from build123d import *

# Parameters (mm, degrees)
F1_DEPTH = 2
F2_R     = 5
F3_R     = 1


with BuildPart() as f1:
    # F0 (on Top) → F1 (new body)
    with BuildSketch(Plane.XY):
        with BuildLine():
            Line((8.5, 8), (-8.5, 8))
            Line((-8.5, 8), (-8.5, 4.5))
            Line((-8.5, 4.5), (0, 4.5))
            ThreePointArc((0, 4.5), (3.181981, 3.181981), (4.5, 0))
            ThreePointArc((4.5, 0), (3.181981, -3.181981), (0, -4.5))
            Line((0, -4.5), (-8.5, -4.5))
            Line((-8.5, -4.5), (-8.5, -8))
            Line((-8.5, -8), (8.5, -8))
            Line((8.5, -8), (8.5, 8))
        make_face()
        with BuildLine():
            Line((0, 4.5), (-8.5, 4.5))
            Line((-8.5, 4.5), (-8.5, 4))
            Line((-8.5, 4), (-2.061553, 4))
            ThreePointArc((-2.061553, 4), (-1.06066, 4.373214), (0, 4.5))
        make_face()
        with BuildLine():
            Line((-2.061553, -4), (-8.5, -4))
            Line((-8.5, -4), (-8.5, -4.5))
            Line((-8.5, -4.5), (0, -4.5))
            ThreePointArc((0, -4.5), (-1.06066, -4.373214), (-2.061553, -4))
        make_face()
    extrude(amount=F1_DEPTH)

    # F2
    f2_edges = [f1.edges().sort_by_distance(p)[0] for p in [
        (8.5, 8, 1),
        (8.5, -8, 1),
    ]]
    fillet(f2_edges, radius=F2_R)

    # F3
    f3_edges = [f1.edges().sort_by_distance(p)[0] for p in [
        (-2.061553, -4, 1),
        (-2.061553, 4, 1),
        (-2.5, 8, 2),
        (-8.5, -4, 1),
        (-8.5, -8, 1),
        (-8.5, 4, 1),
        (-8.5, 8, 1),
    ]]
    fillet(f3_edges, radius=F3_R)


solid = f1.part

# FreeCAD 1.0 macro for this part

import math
import FreeCAD as App
import Part
import Sketcher
from FreeCAD import Vector
Q = App.Units.Quantity


def edges_at(feature, points):
    """Names of the edges that pass closest to the given points."""
    edges = feature.Shape.Edges
    near = lambda p: min(range(len(edges)), key=lambda i: edges[i].distToShape(Part.Vertex(*p))[0])
    return sorted({f"Edge{near(p) + 1}" for p in points})

doc = App.newDocument("Part")
body = doc.addObject("PartDesign::Body", "Body")

sketch1 = doc.addObject("Sketcher::SketchObject", "Sketch")
body.addObject(sketch1)
sketch1.AttachmentSupport = (doc.XY_Plane, [""])
sketch1.MapMode = "FlatFace"
sketch1.addGeometry([
    Part.LineSegment(Vector(8.5, 8, 0), Vector(-8.5, 8, 0)),
    Part.LineSegment(Vector(-8.5, 8, 0), Vector(-8.5, 4, 0)),
    Part.LineSegment(Vector(-8.5, 4, 0), Vector(-2.061553, 4, 0)),
    Part.ArcOfCircle(Part.Circle(Vector(0, 0, 0), Vector(0, 0, 1), 4.5), math.radians(89.999998), math.radians(117.266044)),
    Part.ArcOfCircle(Part.Circle(Vector(0.000002, 0.000002, 0), Vector(0, 0, 1), 4.499998), math.radians(-0.000021), math.radians(90.000021)),
    Part.ArcOfCircle(Part.Circle(Vector(0.000002, -0.000002, 0), Vector(0, 0, 1), 4.499998), math.radians(-90.000021), math.radians(0.000021)),
    Part.ArcOfCircle(Part.Circle(Vector(0, 0, 0), Vector(0, 0, 1), 4.5), math.radians(-117.266044), math.radians(-89.999998)),
    Part.LineSegment(Vector(-2.061553, -4, 0), Vector(-8.5, -4, 0)),
    Part.LineSegment(Vector(-8.5, -4, 0), Vector(-8.5, -8, 0)),
    Part.LineSegment(Vector(-8.5, -8, 0), Vector(8.5, -8, 0)),
    Part.LineSegment(Vector(8.5, -8, 0), Vector(8.5, 8, 0)),
], False)
sketch1.addConstraint([
    Sketcher.Constraint("Coincident", 0, 2, 1, 1),
    Sketcher.Constraint("Coincident", 1, 2, 2, 1),
    Sketcher.Constraint("Coincident", 2, 2, 3, 2),
    Sketcher.Constraint("Tangent", 3, 1, 4, 2),
    Sketcher.Constraint("Tangent", 4, 1, 5, 2),
    Sketcher.Constraint("Tangent", 5, 1, 6, 2),
    Sketcher.Constraint("Coincident", 6, 1, 7, 1),
    Sketcher.Constraint("Coincident", 7, 2, 8, 1),
    Sketcher.Constraint("Coincident", 8, 2, 9, 1),
    Sketcher.Constraint("Coincident", 9, 2, 10, 1),
    Sketcher.Constraint("Coincident", 10, 2, 0, 1),
    Sketcher.Constraint("Horizontal", 0),
    Sketcher.Constraint("Vertical", 1),
    Sketcher.Constraint("Horizontal", 2),
    Sketcher.Constraint("Horizontal", 7),
    Sketcher.Constraint("Vertical", 8),
    Sketcher.Constraint("Horizontal", 9),
    Sketcher.Constraint("Vertical", 10),
    Sketcher.Constraint("Coincident", 3, 3, -1, 1),
    Sketcher.Constraint("Coincident", 5, 3, -1, 1),
    Sketcher.Constraint("Equal", 5, 6),
    Sketcher.Constraint("Symmetric", 0, 2, 9, 2, -1, 1),
    Sketcher.Constraint("Symmetric", 1, 2, 7, 2, -1),
    Sketcher.Constraint("PointOnObject", 3, 1, -2),
    Sketcher.Constraint("PointOnObject", 4, 1, -1),
    Sketcher.Constraint("PointOnObject", 5, 1, -2),
    Sketcher.Constraint("Radius", 3, Q("4.5 mm")),
    Sketcher.Constraint("DistanceX", 0, 2, 0, 1, Q("17 mm")),
    Sketcher.Constraint("DistanceY", 1, 2, 1, 1, Q("4 mm")),
    Sketcher.Constraint("DistanceY", 10, 1, 10, 2, Q("16 mm")),
])
pad1 = doc.addObject("PartDesign::Pad", "Pad")
body.addObject(pad1)
pad1.Profile = sketch1
pad1.Length = 2
doc.recompute()

fillet = doc.addObject("PartDesign::Fillet", "Fillet")
body.addObject(fillet)
fillet.Base = (pad1, edges_at(pad1, [(8.5, 8, 1), (8.5, -8, 1)]))
fillet.Radius = 5
doc.recompute()

fillet2 = doc.addObject("PartDesign::Fillet", "Fillet001")
body.addObject(fillet2)
fillet2.Base = (fillet, edges_at(fillet, [
    (-2.062, -4, 1),
    (-2.062, 4, 1),
    (-2.5, 8, 2),
    (-8.5, -4, 1),
    (-8.5, -8, 1),
    (-8.5, 4, 1),
    (-8.5, 8, 1),
]))
fillet2.Radius = 1

doc.recompute()
